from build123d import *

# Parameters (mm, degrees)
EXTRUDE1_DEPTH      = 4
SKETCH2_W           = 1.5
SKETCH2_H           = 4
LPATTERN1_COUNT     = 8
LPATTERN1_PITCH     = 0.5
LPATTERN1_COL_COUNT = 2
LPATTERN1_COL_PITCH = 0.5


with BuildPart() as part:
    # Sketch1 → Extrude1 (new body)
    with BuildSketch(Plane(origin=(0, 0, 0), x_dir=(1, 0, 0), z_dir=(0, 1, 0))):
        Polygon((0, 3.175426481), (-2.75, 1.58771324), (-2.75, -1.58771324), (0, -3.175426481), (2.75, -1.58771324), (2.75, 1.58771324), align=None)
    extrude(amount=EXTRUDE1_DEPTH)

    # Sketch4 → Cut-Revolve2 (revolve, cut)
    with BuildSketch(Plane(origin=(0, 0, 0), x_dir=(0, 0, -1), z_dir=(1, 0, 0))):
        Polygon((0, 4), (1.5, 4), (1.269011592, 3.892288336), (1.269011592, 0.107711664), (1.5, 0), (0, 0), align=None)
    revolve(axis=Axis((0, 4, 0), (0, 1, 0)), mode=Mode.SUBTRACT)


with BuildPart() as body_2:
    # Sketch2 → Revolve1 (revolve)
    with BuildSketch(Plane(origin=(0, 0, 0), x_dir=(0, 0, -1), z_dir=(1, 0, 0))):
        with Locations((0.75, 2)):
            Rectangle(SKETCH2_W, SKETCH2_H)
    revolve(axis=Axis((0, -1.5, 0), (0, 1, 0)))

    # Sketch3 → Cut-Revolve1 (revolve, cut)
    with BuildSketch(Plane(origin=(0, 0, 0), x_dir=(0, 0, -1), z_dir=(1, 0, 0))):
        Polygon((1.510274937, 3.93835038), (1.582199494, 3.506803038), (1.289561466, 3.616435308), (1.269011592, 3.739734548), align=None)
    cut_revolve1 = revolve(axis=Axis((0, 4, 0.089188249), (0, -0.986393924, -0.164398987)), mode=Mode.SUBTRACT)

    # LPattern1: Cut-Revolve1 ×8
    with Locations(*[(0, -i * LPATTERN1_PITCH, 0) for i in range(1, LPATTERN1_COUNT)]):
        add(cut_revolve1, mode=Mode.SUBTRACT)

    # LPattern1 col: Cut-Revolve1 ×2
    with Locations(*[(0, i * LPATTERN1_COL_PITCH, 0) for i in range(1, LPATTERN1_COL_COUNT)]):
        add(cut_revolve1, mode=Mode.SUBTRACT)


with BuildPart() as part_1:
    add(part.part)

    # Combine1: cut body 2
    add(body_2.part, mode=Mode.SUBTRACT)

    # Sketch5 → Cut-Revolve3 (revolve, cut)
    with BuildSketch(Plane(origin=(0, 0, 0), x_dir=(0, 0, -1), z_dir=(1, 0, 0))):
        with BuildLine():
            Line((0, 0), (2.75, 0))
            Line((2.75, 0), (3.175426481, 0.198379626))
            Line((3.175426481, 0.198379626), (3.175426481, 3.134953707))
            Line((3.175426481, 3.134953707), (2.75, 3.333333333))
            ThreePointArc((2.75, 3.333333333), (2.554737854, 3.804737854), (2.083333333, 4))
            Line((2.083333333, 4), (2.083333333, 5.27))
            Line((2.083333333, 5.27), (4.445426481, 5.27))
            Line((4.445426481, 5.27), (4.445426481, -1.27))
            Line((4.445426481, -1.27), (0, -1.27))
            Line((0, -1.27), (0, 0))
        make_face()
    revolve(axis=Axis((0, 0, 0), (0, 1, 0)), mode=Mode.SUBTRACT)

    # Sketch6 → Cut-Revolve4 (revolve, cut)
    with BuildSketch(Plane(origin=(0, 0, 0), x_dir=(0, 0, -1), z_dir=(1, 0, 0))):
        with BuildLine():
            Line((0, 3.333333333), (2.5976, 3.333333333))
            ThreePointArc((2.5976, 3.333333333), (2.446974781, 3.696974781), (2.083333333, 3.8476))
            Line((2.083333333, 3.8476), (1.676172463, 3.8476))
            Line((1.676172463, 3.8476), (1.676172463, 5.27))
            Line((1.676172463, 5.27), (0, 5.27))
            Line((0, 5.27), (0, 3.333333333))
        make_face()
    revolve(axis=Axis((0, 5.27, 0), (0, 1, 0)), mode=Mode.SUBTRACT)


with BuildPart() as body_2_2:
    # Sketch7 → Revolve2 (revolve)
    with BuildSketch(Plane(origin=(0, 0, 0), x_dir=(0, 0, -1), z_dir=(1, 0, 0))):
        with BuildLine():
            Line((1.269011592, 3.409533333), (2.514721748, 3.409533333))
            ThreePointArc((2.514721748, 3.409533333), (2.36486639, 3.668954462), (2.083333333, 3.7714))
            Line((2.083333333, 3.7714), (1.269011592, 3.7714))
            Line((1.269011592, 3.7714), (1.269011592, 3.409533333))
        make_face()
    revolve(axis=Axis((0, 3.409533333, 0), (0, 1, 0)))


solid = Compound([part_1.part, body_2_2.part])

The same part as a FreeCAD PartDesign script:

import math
import FreeCAD as App
import Part
import Sketcher
Q = App.Units.Quantity


def add_polygon(sketch, points):
    """Adds a closed chain of lines whose ends are joined by coincident constraints."""
    first, n = sketch.GeometryCount, len(points)
    for a, b in zip(points, points[1:] + points[:1]):
        sketch.addGeometry(Part.LineSegment(App.Vector(*a, 0), App.Vector(*b, 0)), False)
    for i in range(n):
        sketch.addConstraint(Sketcher.Constraint("Coincident", first + i, 2, first + (i + 1) % n, 1))

doc = App.newDocument("Part")
body = doc.addObject("PartDesign::Body", "Body")

# Sketch on XZ plane
sketch1 = body.newObject("Sketcher::SketchObject", "Sketch")
sketch1.AttachmentSupport = (doc.getObject("XZ_Plane"), [""])
sketch1.MapMode = "FlatFace"
add_polygon(sketch1, [(0, -3.2), (-2.8, -1.6), (-2.8, 1.6), (0, 3.2), (2.8, 1.6), (2.8, -1.6)])  # lines 0-5
sketch1.addConstraint(Sketcher.Constraint("Vertical", 1))
sketch1.addConstraint(Sketcher.Constraint("Vertical", 4))
sketch1.addConstraint(Sketcher.Constraint("Symmetric", 0, 2, 3, 2, -1, 1))
sketch1.addConstraint(Sketcher.Constraint("Symmetric", 2, 2, 5, 2, -1, 1))
sketch1.addConstraint(Sketcher.Constraint("PointOnObject", 2, 2, -2))
sketch1.addConstraint(Sketcher.Constraint("Parallel", 2, 5))
sketch1.addConstraint(Sketcher.Constraint("Horizontal", 1, 2, 3, 2))
sketch1.addConstraint(Sketcher.Constraint("Angle", 0, Q("150 deg")))
sketch1.addConstraint(Sketcher.Constraint("DistanceX", 1, 2, 3, 2, Q("5.5 mm")))
sketch1.addConstraint(Sketcher.Constraint("DistanceY", 1, 1, 1, 2, Q("3.175426 mm")))
pad1 = body.newObject("PartDesign::Pad", "Pad")
pad1.Profile = sketch1
pad1.Length = 4
pad1.Reversed = True

# Sketch on YZ plane
sketch2 = body.newObject("Sketcher::SketchObject", "Sketch001")
sketch2.AttachmentSupport = (doc.getObject("YZ_Plane"), [""])
sketch2.MapMode = "FlatFace"
add_polygon(sketch2, [(4, -1.5), (4, 0), (0, 0), (0, -1.5), (0.11, -1.27), (3.89, -1.27)])  # lines 0-5
sketch2.addConstraint(Sketcher.Constraint("Vertical", 0))
sketch2.addConstraint(Sketcher.Constraint("Horizontal", 1))
sketch2.addConstraint(Sketcher.Constraint("Vertical", 2))
sketch2.addConstraint(Sketcher.Constraint("Horizontal", 4))
sketch2.addConstraint(Sketcher.Constraint("Coincident", 1, 2, -1, 1))
sketch2.addConstraint(Sketcher.Constraint("Horizontal", 2, 2, 5, 2))
sketch2.addConstraint(Sketcher.Constraint("Equal", 3, 5))
sketch2.addConstraint(Sketcher.Constraint("DistanceX", 1, 2, 1, 1, Q("4 mm")))
sketch2.addConstraint(Sketcher.Constraint("Angle", 3, Q("65 deg")))
sketch2.addConstraint(Sketcher.Constraint("DistanceY", 0, 1, 0, 2, Q("1.5 mm")))
sketch2.addConstraint(Sketcher.Constraint("DistanceX", 4, 1, 4, 2, Q("3.784577 mm")))
groove = body.newObject("PartDesign::Groove", "Groove")
groove.Profile = sketch2
groove.ReferenceAxis = (sketch2, ["H_Axis"])
groove.Angle = 360
body2 = doc.addObject("PartDesign::Body", "Body001")

# Sketch on YZ plane
sketch3 = body2.newObject("Sketcher::SketchObject", "Sketch002")
sketch3.AttachmentSupport = (doc.getObject("YZ_Plane001"), [""])
sketch3.MapMode = "FlatFace"
add_polygon(sketch3, [(4, 0), (0, 0), (0, -1.5), (4, -1.5)])  # lines 0-3
sketch3.addConstraint(Sketcher.Constraint("Horizontal", 0))
sketch3.addConstraint(Sketcher.Constraint("Vertical", 1))
sketch3.addConstraint(Sketcher.Constraint("Horizontal", 2))
sketch3.addConstraint(Sketcher.Constraint("Vertical", 3))
sketch3.addConstraint(Sketcher.Constraint("Coincident", 0, 2, -1, 1))
sketch3.addConstraint(Sketcher.Constraint("DistanceX", 0, 2, 0, 1, Q("4 mm")))
sketch3.addConstraint(Sketcher.Constraint("DistanceY", 1, 2, 1, 1, Q("1.5 mm")))
revolution = body2.newObject("PartDesign::Revolution", "Revolution")
revolution.Profile = sketch3
revolution.ReferenceAxis = (sketch3, ["H_Axis"])
revolution.Angle = 360

# Sketch on YZ plane
sketch4 = body2.newObject("Sketcher::SketchObject", "Sketch003")
sketch4.AttachmentSupport = (doc.getObject("YZ_Plane001"), [""])
sketch4.MapMode = "FlatFace"
add_polygon(sketch4, [(3.51, -1.58), (3.94, -1.51), (3.74, -1.27), (3.62, -1.29)])  # lines 0-3
sketch4.addGeometry(Part.LineSegment(App.Vector(3.68, 0.04, 0), App.Vector(3.25, -0.04, 0)), True)  # axis
sketch4.addConstraint(Sketcher.Constraint("Parallel", 0, 2))
sketch4.addConstraint(Sketcher.Constraint("Parallel", 2, 4))
sketch4.addConstraint(Sketcher.Constraint("Equal", 1, 3))
sketch4.addConstraint(Sketcher.Constraint("Equal", 0, 4))
sketch4.addConstraint(Sketcher.Constraint("Distance", 2, Q("0.125 mm")))
sketch4.addConstraint(Sketcher.Constraint("Distance", 0, Q("0.4375 mm")))
sketch4.addConstraint(Sketcher.Constraint("Distance", 1, Q("0.3125 mm")))
sketch4.addConstraint(Sketcher.Constraint("DistanceY", 3, 2, -1, 1, Q("1.582199 mm")))
sketch4.addConstraint(Sketcher.Constraint("DistanceX", 2, 2, 1, 2, Q("0.123299 mm")))
sketch4.addConstraint(Sketcher.Constraint("DistanceY", 2, 2, 4, 2, Q("1.253599 mm")))
sketch4.addConstraint(Sketcher.Constraint("DistanceX", -1, 1, 0, 2, Q("3.93835 mm")))
sketch4.addConstraint(Sketcher.Constraint("DistanceX", 4, 1, 1, 2, Q("0.05909 mm")))
groove2 = body2.newObject("PartDesign::Groove", "Groove001")
groove2.Profile = sketch4
groove2.ReferenceAxis = (sketch4, ["Axis0"])
groove2.Angle = 360
doc.recompute()

linearpattern = body2.newObject("PartDesign::LinearPattern", "LinearPattern")
linearpattern.Originals = [groove2]
linearpattern.Direction = (doc.getObject("Y_Axis001"), [""])
linearpattern.Mode = "offset"
linearpattern.Offset = 0.5
linearpattern.Occurrences = 8
linearpattern.Reversed = True
body2.Tip = linearpattern
doc.recompute()

linearpattern2 = body2.newObject("PartDesign::LinearPattern", "LinearPattern001")
linearpattern2.Originals = [groove2]
linearpattern2.Direction = (doc.getObject("Y_Axis001"), [""])
linearpattern2.Mode = "offset"
linearpattern2.Offset = 0.5
linearpattern2.Occurrences = 2
body2.Tip = linearpattern2
doc.recompute()

boolean = body.newObject("PartDesign::Boolean", "Boolean")
boolean.Type = "Cut"
boolean.addObjects([body2])

# Sketch on YZ plane
sketch5 = body.newObject("Sketcher::SketchObject", "Sketch004")
sketch5.AttachmentSupport = (doc.getObject("YZ_Plane"), [""])
sketch5.MapMode = "FlatFace"
sketch5.addGeometry(Part.LineSegment(App.Vector(0, -2.75, 0), App.Vector(0, 0, 0)), False)
sketch5.addGeometry(Part.LineSegment(App.Vector(0, 0, 0), App.Vector(-1.27, 0, 0)), False)
sketch5.addGeometry(Part.LineSegment(App.Vector(-1.27, 0, 0), App.Vector(-1.27, -4.45, 0)), False)
sketch5.addGeometry(Part.LineSegment(App.Vector(-1.27, -4.45, 0), App.Vector(5.27, -4.45, 0)), False)
sketch5.addGeometry(Part.LineSegment(App.Vector(5.27, -4.45, 0), App.Vector(5.27, -2.08, 0)), False)
sketch5.addGeometry(Part.LineSegment(App.Vector(5.27, -2.08, 0), App.Vector(4, -2.08, 0)), False)
sketch5.addGeometry(Part.ArcOfCircle(Part.Circle(App.Vector(3.33, -2.08, 0), App.Vector(0, 0, 1), 0.67), math.radians(-90), math.radians(0)), False)
sketch5.addGeometry(Part.LineSegment(App.Vector(3.33, -2.75, 0), App.Vector(3.13, -3.18, 0)), False)
sketch5.addGeometry(Part.LineSegment(App.Vector(3.13, -3.18, 0), App.Vector(0.2, -3.18, 0)), False)
sketch5.addGeometry(Part.LineSegment(App.Vector(0.2, -3.18, 0), App.Vector(0, -2.75, 0)), False)
sketch5.addConstraint(Sketcher.Constraint("Coincident", 0, 2, 1, 1))
sketch5.addConstraint(Sketcher.Constraint("Coincident", 1, 2, 2, 1))
sketch5.addConstraint(Sketcher.Constraint("Coincident", 2, 2, 3, 1))
sketch5.addConstraint(Sketcher.Constraint("Coincident", 3, 2, 4, 1))
sketch5.addConstraint(Sketcher.Constraint("Coincident", 4, 2, 5, 1))
sketch5.addConstraint(Sketcher.Constraint("Coincident", 5, 2, 6, 2))
sketch5.addConstraint(Sketcher.Constraint("Coincident", 6, 1, 7, 1))
sketch5.addConstraint(Sketcher.Constraint("Coincident", 7, 2, 8, 1))
sketch5.addConstraint(Sketcher.Constraint("Coincident", 8, 2, 9, 1))
sketch5.addConstraint(Sketcher.Constraint("Coincident", 9, 2, 0, 1))
sketch5.addConstraint(Sketcher.Constraint("Vertical", 0))
sketch5.addConstraint(Sketcher.Constraint("Horizontal", 1))
sketch5.addConstraint(Sketcher.Constraint("Vertical", 2))
sketch5.addConstraint(Sketcher.Constraint("Horizontal", 3))
sketch5.addConstraint(Sketcher.Constraint("Vertical", 4))
sketch5.addConstraint(Sketcher.Constraint("Horizontal", 5))
sketch5.addConstraint(Sketcher.Constraint("Horizontal", 8))
sketch5.addConstraint(Sketcher.Constraint("Coincident", 0, 2, -1, 1))
sketch5.addConstraint(Sketcher.Constraint("Horizontal", 6, 3, 4, 2))
sketch5.addConstraint(Sketcher.Constraint("Horizontal", 6, 1, 9, 2))
sketch5.addConstraint(Sketcher.Constraint("Equal", 1, 5))
sketch5.addConstraint(Sketcher.Constraint("Equal", 7, 9))
sketch5.addConstraint(Sketcher.Constraint("Angle", 7, Q("-115 deg")))
sketch5.addConstraint(Sketcher.Constraint("DistanceX", -1, 1, 5, 2, Q("4 mm")))
sketch5.addConstraint(Sketcher.Constraint("DistanceX", 1, 2, 1, 1, Q("1.27 mm")))
sketch5.addConstraint(Sketcher.Constraint("DistanceY", 0, 1, 0, 2, Q("2.75 mm")))
sketch5.addConstraint(Sketcher.Constraint("DistanceY", 3, 2, 7, 2, Q("1.27 mm")))
sketch5.addConstraint(Sketcher.Constraint("Radius", 6, Q("0.666667 mm")))
sketch5.addConstraint(Sketcher.Constraint("DistanceX", 8, 2, 8, 1, Q("2.936574 mm")))
sketch5.addConstraint(Sketcher.Constraint("DistanceY", 2, 2, 2, 1, Q("4.445426 mm")))
groove3 = body.newObject("PartDesign::Groove", "Groove002")
groove3.Profile = sketch5
groove3.ReferenceAxis = (sketch5, ["H_Axis"])
groove3.Angle = 360

# Sketch on YZ plane
sketch6 = body.newObject("Sketcher::SketchObject", "Sketch005")
sketch6.AttachmentSupport = (doc.getObject("YZ_Plane"), [""])
sketch6.MapMode = "FlatFace"
sketch6.addGeometry(Part.LineSegment(App.Vector(3.33, 0, 0), App.Vector(3.33, -2.6, 0)), False)
sketch6.addGeometry(Part.ArcOfCircle(Part.Circle(App.Vector(3.33, -2.08, 0), App.Vector(0, 0, 1), 0.51), math.radians(-90), math.radians(0)), False)
sketch6.addGeometry(Part.LineSegment(App.Vector(3.85, -2.08, 0), App.Vector(3.85, -1.68, 0)), False)
sketch6.addGeometry(Part.LineSegment(App.Vector(3.85, -1.68, 0), App.Vector(5.27, -1.68, 0)), False)
sketch6.addGeometry(Part.LineSegment(App.Vector(5.27, -1.68, 0), App.Vector(5.27, 0, 0)), False)
sketch6.addGeometry(Part.LineSegment(App.Vector(5.27, 0, 0), App.Vector(3.33, 0, 0)), False)
sketch6.addConstraint(Sketcher.Constraint("Coincident", 0, 2, 1, 1))
sketch6.addConstraint(Sketcher.Constraint("Tangent", 1, 2, 2, 1))
sketch6.addConstraint(Sketcher.Constraint("Coincident", 2, 2, 3, 1))
sketch6.addConstraint(Sketcher.Constraint("Coincident", 3, 2, 4, 1))
sketch6.addConstraint(Sketcher.Constraint("Coincident", 4, 2, 5, 1))
sketch6.addConstraint(Sketcher.Constraint("Coincident", 5, 2, 0, 1))
sketch6.addConstraint(Sketcher.Constraint("Vertical", 0))
sketch6.addConstraint(Sketcher.Constraint("Vertical", 2))
sketch6.addConstraint(Sketcher.Constraint("Horizontal", 3))
sketch6.addConstraint(Sketcher.Constraint("Vertical", 4))
sketch6.addConstraint(Sketcher.Constraint("Horizontal", 5))
sketch6.addConstraint(Sketcher.Constraint("PointOnObject", 4, 2, -1))
sketch6.addConstraint(Sketcher.Constraint("Vertical", 1, 3, 0, 2))
sketch6.addConstraint(Sketcher.Constraint("DistanceX", -1, 1, 3, 2, Q("5.27 mm")))
sketch6.addConstraint(Sketcher.Constraint("DistanceX", 3, 1, 3, 2, Q("1.4224 mm")))
sketch6.addConstraint(Sketcher.Constraint("DistanceY", 0, 2, 0, 1, Q("2.5976 mm")))
sketch6.addConstraint(Sketcher.Constraint("Radius", 1, Q("0.514267 mm")))
sketch6.addConstraint(Sketcher.Constraint("DistanceY", 2, 1, 2, 2, Q("0.407161 mm")))
groove4 = body.newObject("PartDesign::Groove", "Groove003")
groove4.Profile = sketch6
groove4.ReferenceAxis = (sketch6, ["H_Axis"])
groove4.Angle = 360
body3 = doc.addObject("PartDesign::Body", "Body002")

# Sketch on YZ plane
sketch7 = body3.newObject("Sketcher::SketchObject", "Sketch006")
sketch7.AttachmentSupport = (doc.getObject("YZ_Plane002"), [""])
sketch7.MapMode = "FlatFace"
sketch7.addGeometry(Part.LineSegment(App.Vector(3.41, -1.27, 0), App.Vector(3.41, -2.51, 0)), False)
sketch7.addGeometry(Part.ArcOfCircle(Part.Circle(App.Vector(3.33, -2.08, 0), App.Vector(0, 0, 1), 0.44), math.radians(-80), math.radians(0)), False)
sketch7.addGeometry(Part.LineSegment(App.Vector(3.77, -2.08, 0), App.Vector(3.77, -1.27, 0)), False)
sketch7.addGeometry(Part.LineSegment(App.Vector(3.77, -1.27, 0), App.Vector(3.41, -1.27, 0)), False)
sketch7.addConstraint(Sketcher.Constraint("Coincident", 0, 2, 1, 1))
sketch7.addConstraint(Sketcher.Constraint("Tangent", 1, 2, 2, 1))
sketch7.addConstraint(Sketcher.Constraint("Coincident", 2, 2, 3, 1))
sketch7.addConstraint(Sketcher.Constraint("Coincident", 3, 2, 0, 1))
sketch7.addConstraint(Sketcher.Constraint("Vertical", 0))
sketch7.addConstraint(Sketcher.Constraint("Vertical", 2))
sketch7.addConstraint(Sketcher.Constraint("Horizontal", 3))
sketch7.addConstraint(Sketcher.Constraint("Radius", 1, Q("0.438067 mm")))
sketch7.addConstraint(Sketcher.Constraint("DistanceY", 0, 2, 0, 1, Q("1.24571 mm")))
sketch7.addConstraint(Sketcher.Constraint("DistanceY", 2, 1, 2, 2, Q("0.814322 mm")))
sketch7.addConstraint(Sketcher.Constraint("DistanceX", -1, 1, 1, 2, Q("3.7714 mm")))
sketch7.addConstraint(Sketcher.Constraint("DistanceY", 0, 2, -1, 1, Q("2.514722 mm")))
revolution2 = body3.newObject("PartDesign::Revolution", "Revolution001")
revolution2.Profile = sketch7
revolution2.ReferenceAxis = (sketch7, ["H_Axis"])
revolution2.Angle = 360

doc.recompute()
